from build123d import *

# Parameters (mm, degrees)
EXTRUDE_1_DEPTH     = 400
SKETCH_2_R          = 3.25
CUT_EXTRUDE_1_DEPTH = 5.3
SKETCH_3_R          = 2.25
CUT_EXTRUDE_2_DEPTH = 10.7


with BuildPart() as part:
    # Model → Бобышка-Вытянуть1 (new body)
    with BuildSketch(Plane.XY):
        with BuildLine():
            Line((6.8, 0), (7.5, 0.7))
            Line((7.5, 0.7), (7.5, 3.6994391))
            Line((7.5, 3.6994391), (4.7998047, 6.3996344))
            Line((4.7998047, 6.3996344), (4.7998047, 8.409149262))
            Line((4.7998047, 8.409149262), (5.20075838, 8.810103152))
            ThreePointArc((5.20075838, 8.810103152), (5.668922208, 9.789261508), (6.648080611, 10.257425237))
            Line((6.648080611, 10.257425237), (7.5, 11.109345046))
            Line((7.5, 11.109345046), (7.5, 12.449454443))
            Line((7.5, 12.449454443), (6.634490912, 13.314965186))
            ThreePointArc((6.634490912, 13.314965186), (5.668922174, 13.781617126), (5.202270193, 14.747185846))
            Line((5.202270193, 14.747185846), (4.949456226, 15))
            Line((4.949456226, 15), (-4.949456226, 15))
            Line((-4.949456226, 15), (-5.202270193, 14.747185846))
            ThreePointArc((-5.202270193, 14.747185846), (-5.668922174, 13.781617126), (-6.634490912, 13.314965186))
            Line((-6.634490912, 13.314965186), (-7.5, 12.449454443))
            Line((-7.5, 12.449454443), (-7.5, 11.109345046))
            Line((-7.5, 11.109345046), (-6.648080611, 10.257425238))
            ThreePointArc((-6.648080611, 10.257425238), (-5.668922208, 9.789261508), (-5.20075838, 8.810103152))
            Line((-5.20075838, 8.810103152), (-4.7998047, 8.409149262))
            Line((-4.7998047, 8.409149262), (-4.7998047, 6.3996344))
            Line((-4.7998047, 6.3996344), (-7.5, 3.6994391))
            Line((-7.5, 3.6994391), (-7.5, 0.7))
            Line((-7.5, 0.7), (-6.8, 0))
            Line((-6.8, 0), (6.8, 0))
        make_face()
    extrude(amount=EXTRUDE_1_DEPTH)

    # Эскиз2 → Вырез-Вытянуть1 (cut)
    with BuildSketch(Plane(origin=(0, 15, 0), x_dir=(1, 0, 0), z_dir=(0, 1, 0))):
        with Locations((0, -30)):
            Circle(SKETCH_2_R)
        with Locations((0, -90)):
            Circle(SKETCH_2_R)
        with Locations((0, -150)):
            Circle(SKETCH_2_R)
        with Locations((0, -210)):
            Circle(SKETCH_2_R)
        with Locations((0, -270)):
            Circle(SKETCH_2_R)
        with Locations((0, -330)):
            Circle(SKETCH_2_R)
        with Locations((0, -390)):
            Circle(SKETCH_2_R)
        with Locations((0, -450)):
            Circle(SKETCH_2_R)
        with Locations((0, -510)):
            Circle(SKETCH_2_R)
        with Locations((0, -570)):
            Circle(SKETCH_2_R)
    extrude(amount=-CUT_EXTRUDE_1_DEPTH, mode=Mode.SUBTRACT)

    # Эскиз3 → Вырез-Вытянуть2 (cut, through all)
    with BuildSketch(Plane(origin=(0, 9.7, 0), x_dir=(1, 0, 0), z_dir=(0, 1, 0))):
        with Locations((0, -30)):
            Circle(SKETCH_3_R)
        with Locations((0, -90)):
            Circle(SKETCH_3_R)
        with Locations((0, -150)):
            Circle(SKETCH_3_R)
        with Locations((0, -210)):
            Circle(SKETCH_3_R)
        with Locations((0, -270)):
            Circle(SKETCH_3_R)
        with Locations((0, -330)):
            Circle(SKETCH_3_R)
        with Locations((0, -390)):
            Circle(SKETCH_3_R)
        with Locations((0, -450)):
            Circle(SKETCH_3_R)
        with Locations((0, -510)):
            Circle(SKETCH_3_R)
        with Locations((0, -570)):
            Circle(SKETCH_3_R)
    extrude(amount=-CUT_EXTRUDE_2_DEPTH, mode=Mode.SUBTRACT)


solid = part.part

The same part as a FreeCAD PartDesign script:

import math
import FreeCAD as App
import Part
import Sketcher

V = App.Vector

doc = App.newDocument("Part")
params = doc.addObject("Spreadsheet::Sheet", "Params")
for row, (alias, value) in enumerate([
    ("sketch1_radius", "1.63 mm"),
    ("sketch1_width", "13.6 mm"),
    ("pad1_length", "400 mm"),
    ("sketch2_diameter", "6.5 mm"),
    ("pocket1_length", "5.3 mm"),
    ("sketch3_diameter", "4.5 mm"),
], start=1):
    params.set(f"A{row}", alias)
    params.set(f"B{row}", "=" + value)
    params.setAlias(f"B{row}", alias)

body = doc.addObject("PartDesign::Body", "Body")

sketch1 = doc.addObject("Sketcher::SketchObject", "Sketch")
body.addObject(sketch1)
sketch1.AttachmentSupport = (doc.XY_Plane, [""])
sketch1.MapMode = "FlatFace"
sketch1.addGeometry(Part.LineSegment(V(6.8, 0, 0), V(7.5, 0.7, 0)), False)
sketch1.addGeometry(Part.LineSegment(V(7.5, 0.7, 0), V(7.5, 3.699439, 0)), False)
sketch1.addGeometry(Part.LineSegment(V(7.5, 3.699439, 0), V(4.799805, 6.399634, 0)), False)
sketch1.addGeometry(Part.LineSegment(V(4.799805, 6.399634, 0), V(4.799805, 8.409149, 0)), False)
sketch1.addGeometry(Part.LineSegment(V(4.799805, 8.409149, 0), V(5.200758, 8.810103, 0)), False)
sketch1.addGeometry(Part.ArcOfCircle(Part.Circle(V(6.821506, 8.636677, 0), V(0, 0, 1), 1.63), math.radians(96.107606), math.radians(173.892388)), False)
sketch1.addGeometry(Part.LineSegment(V(6.648081, 10.257425, 0), V(7.5, 11.109345, 0)), False)
sketch1.addGeometry(Part.LineSegment(V(7.5, 11.109345, 0), V(7.5, 12.449454, 0)), False)
sketch1.addGeometry(Part.LineSegment(V(7.5, 12.449454, 0), V(6.634491, 13.314965, 0)), False)
sketch1.addGeometry(Part.ArcOfCircle(Part.Circle(V(6.821506, 14.934201, 0), V(0, 0, 1), 1.63), math.radians(-173.411755), math.radians(-96.588243)), False)
sketch1.addGeometry(Part.LineSegment(V(5.20227, 14.747186, 0), V(4.949456, 15, 0)), False)
sketch1.addGeometry(Part.LineSegment(V(4.949456, 15, 0), V(-4.949456, 15, 0)), False)
sketch1.addGeometry(Part.LineSegment(V(-4.949456, 15, 0), V(-5.20227, 14.747186, 0)), False)
sketch1.addGeometry(Part.ArcOfCircle(Part.Circle(V(-6.821506, 14.934201, 0), V(0, 0, 1), 1.63), math.radians(-83.411757), math.radians(-6.588245)), False)
sketch1.addGeometry(Part.LineSegment(V(-6.634491, 13.314965, 0), V(-7.5, 12.449454, 0)), False)
sketch1.addGeometry(Part.LineSegment(V(-7.5, 12.449454, 0), V(-7.5, 11.109345, 0)), False)
sketch1.addGeometry(Part.LineSegment(V(-7.5, 11.109345, 0), V(-6.648081, 10.257425, 0)), False)
sketch1.addGeometry(Part.ArcOfCircle(Part.Circle(V(-6.821506, 8.636677, 0), V(0, 0, 1), 1.63), math.radians(6.107612), math.radians(83.892394)), False)
sketch1.addGeometry(Part.LineSegment(V(-5.200758, 8.810103, 0), V(-4.799805, 8.409149, 0)), False)
sketch1.addGeometry(Part.LineSegment(V(-4.799805, 8.409149, 0), V(-4.799805, 6.399634, 0)), False)
sketch1.addGeometry(Part.LineSegment(V(-4.799805, 6.399634, 0), V(-7.5, 3.699439, 0)), False)
sketch1.addGeometry(Part.LineSegment(V(-7.5, 3.699439, 0), V(-7.5, 0.7, 0)), False)
sketch1.addGeometry(Part.LineSegment(V(-7.5, 0.7, 0), V(-6.8, 0, 0)), False)
sketch1.addGeometry(Part.LineSegment(V(-6.8, 0, 0), V(6.8, 0, 0)), False)
sketch1.addConstraint(Sketcher.Constraint("Coincident", 0, 2, 1, 1))
sketch1.addConstraint(Sketcher.Constraint("Coincident", 1, 2, 2, 1))
sketch1.addConstraint(Sketcher.Constraint("Coincident", 2, 2, 3, 1))
sketch1.addConstraint(Sketcher.Constraint("Coincident", 3, 2, 4, 1))
sketch1.addConstraint(Sketcher.Constraint("Coincident", 4, 2, 5, 2))
sketch1.addConstraint(Sketcher.Constraint("Coincident", 5, 1, 6, 1))
sketch1.addConstraint(Sketcher.Constraint("Coincident", 6, 2, 7, 1))
sketch1.addConstraint(Sketcher.Constraint("Coincident", 7, 2, 8, 1))
sketch1.addConstraint(Sketcher.Constraint("Coincident", 8, 2, 9, 2))
sketch1.addConstraint(Sketcher.Constraint("Coincident", 9, 1, 10, 1))
sketch1.addConstraint(Sketcher.Constraint("Coincident", 10, 2, 11, 1))
sketch1.addConstraint(Sketcher.Constraint("Coincident", 11, 2, 12, 1))
sketch1.addConstraint(Sketcher.Constraint("Coincident", 12, 2, 13, 2))
sketch1.addConstraint(Sketcher.Constraint("Coincident", 13, 1, 14, 1))
sketch1.addConstraint(Sketcher.Constraint("Coincident", 14, 2, 15, 1))
sketch1.addConstraint(Sketcher.Constraint("Coincident", 15, 2, 16, 1))
sketch1.addConstraint(Sketcher.Constraint("Coincident", 16, 2, 17, 2))
sketch1.addConstraint(Sketcher.Constraint("Coincident", 17, 1, 18, 1))
sketch1.addConstraint(Sketcher.Constraint("Coincident", 18, 2, 19, 1))
sketch1.addConstraint(Sketcher.Constraint("Coincident", 19, 2, 20, 1))
sketch1.addConstraint(Sketcher.Constraint("Coincident", 20, 2, 21, 1))
sketch1.addConstraint(Sketcher.Constraint("Coincident", 21, 2, 22, 1))
sketch1.addConstraint(Sketcher.Constraint("Coincident", 22, 2, 23, 1))
sketch1.addConstraint(Sketcher.Constraint("Coincident", 23, 2, 0, 1))
sketch1.addConstraint(Sketcher.Constraint("Vertical", 1))
sketch1.addConstraint(Sketcher.Constraint("Vertical", 3))
sketch1.addConstraint(Sketcher.Constraint("Vertical", 7))
sketch1.addConstraint(Sketcher.Constraint("Horizontal", 11))
sketch1.addConstraint(Sketcher.Constraint("Vertical", 15))
sketch1.addConstraint(Sketcher.Constraint("Vertical", 19))
sketch1.addConstraint(Sketcher.Constraint("Vertical", 21))
sketch1.addConstraint(Sketcher.Constraint("Horizontal", 23))
sketch1.addConstraint(Sketcher.Constraint("Equal", 5, 9))
sketch1.addConstraint(Sketcher.Constraint("Equal", 9, 13))
sketch1.addConstraint(Sketcher.Constraint("Equal", 13, 17))
sketch1.addConstraint(Sketcher.Constraint("Symmetric", 22, 2, 23, 2, -1, 1))
sketch1.addConstraint(Sketcher.Constraint("Symmetric", 9, 3, 13, 3, -2))
sketch1.addConstraint(Sketcher.Constraint("Symmetric", 5, 3, 17, 3, -2))
sketch1.addConstraint(Sketcher.Constraint("Symmetric", 7, 2, 14, 2, -2))
sketch1.addConstraint(Sketcher.Constraint("Symmetric", 3, 2, 18, 2, -2))
sketch1.addConstraint(Sketcher.Constraint("Symmetric", 1, 2, 20, 2, -2))
sketch1.addConstraint(Sketcher.Constraint("Perpendicular", 0, 2))
sketch1.addConstraint(Sketcher.Constraint("Perpendicular", 2, 4))
sketch1.addConstraint(Sketcher.Constraint("Parallel", 4, 6))
sketch1.addConstraint(Sketcher.Constraint("Perpendicular", 6, 8))
sketch1.addConstraint(Sketcher.Constraint("Parallel", 8, 10))
sketch1.addConstraint(Sketcher.Constraint("Perpendicular", 10, 12))
sketch1.addConstraint(Sketcher.Constraint("Parallel", 12, 14))
sketch1.addConstraint(Sketcher.Constraint("Perpendicular", 14, 16))
sketch1.addConstraint(Sketcher.Constraint("Parallel", 16, 18))
sketch1.addConstraint(Sketcher.Constraint("Perpendicular", 18, 20))
sketch1.addConstraint(Sketcher.Constraint("Perpendicular", 20, 22))
sketch1.addConstraint(Sketcher.Constraint("Horizontal", 9, 1, 12, 2))
sketch1.addConstraint(Sketcher.Constraint("Horizontal", 8, 2, 13, 1))
sketch1.addConstraint(Sketcher.Constraint("Horizontal", 6, 2, 15, 2))
sketch1.addConstraint(Sketcher.Constraint("Vertical", 5, 3, 9, 3))
sketch1.addConstraint(Sketcher.Constraint("Vertical", 1, 2, 6, 2))
sketch1.addConstraint(Sketcher.Constraint("Radius", 5, 1.63))
sketch1.addConstraint(Sketcher.Constraint("DistanceX", 23, 1, 23, 2, 13.6))
sketch1.addConstraint(Sketcher.Constraint("DistanceY", -1, 1, 10, 2, 15.0))
sketch1.addConstraint(Sketcher.Constraint("DistanceX", -1, 1, 0, 2, 7.5))
sketch1.addConstraint(Sketcher.Constraint("DistanceY", 1, 1, 1, 2, 2.999439))
sketch1.addConstraint(Sketcher.Constraint("DistanceY", 7, 1, 7, 2, 1.340109))
sketch1.addConstraint(Sketcher.Constraint("DistanceY", -1, 1, 9, 3, 14.934201))
sketch1.addConstraint(Sketcher.Constraint("DistanceX", 2, 2, 5, 3, 2.021702))
sketch1.addConstraint(Sketcher.Constraint("DistanceY", 4, 2, 9, 3, 6.124098))
sketch1.addConstraint(Sketcher.Constraint("DistanceX", 11, 2, 11, 1, 9.898912))
sketch1.addConstraint(Sketcher.Constraint("DistanceY", 3, 1, 3, 2, 2.009515))
sketch1.addConstraint(Sketcher.Constraint("DistanceY", -1, 1, 3, 2, 8.409149))
sketch1.addConstraint(Sketcher.Constraint("DistanceX", -1, 1, 5, 1, 6.648081))
sketch1.setExpression("Constraints[57]", "Params.sketch1_radius")
sketch1.setExpression("Constraints[58]", "Params.sketch1_width")
pad1 = doc.addObject("PartDesign::Pad", "Pad")
body.addObject(pad1)
pad1.Profile = sketch1
pad1.setExpression("Length", "Params.pad1_length")

sketch2 = doc.addObject("Sketcher::SketchObject", "Sketch001")
body.addObject(sketch2)
sketch2.AttachmentSupport = (doc.XZ_Plane, [""])
sketch2.MapMode = "FlatFace"
sketch2.AttachmentOffset = App.Placement(V(0, 0, -15), App.Rotation())
sketch2.addGeometry(Part.Circle(V(0, 30, 0), V(0, 0, 1), 3.25), False)
sketch2.addGeometry(Part.Circle(V(0, 90, 0), V(0, 0, 1), 3.25), False)
sketch2.addGeometry(Part.Circle(V(0, 150, 0), V(0, 0, 1), 3.25), False)
sketch2.addGeometry(Part.Circle(V(0, 210, 0), V(0, 0, 1), 3.25), False)
sketch2.addGeometry(Part.Circle(V(0, 270, 0), V(0, 0, 1), 3.25), False)
sketch2.addGeometry(Part.Circle(V(0, 330, 0), V(0, 0, 1), 3.25), False)
sketch2.addGeometry(Part.Circle(V(0, 390, 0), V(0, 0, 1), 3.25), False)
sketch2.addGeometry(Part.Circle(V(0, 450, 0), V(0, 0, 1), 3.25), False)
sketch2.addGeometry(Part.Circle(V(0, 510, 0), V(0, 0, 1), 3.25), False)
sketch2.addGeometry(Part.Circle(V(0, 570, 0), V(0, 0, 1), 3.25), False)
sketch2.addConstraint(Sketcher.Constraint("Equal", 0, 1))
sketch2.addConstraint(Sketcher.Constraint("Equal", 1, 2))
sketch2.addConstraint(Sketcher.Constraint("Equal", 2, 3))
sketch2.addConstraint(Sketcher.Constraint("Equal", 3, 4))
sketch2.addConstraint(Sketcher.Constraint("Equal", 4, 5))
sketch2.addConstraint(Sketcher.Constraint("Equal", 5, 6))
sketch2.addConstraint(Sketcher.Constraint("Equal", 6, 7))
sketch2.addConstraint(Sketcher.Constraint("Equal", 7, 8))
sketch2.addConstraint(Sketcher.Constraint("Equal", 8, 9))
sketch2.addConstraint(Sketcher.Constraint("PointOnObject", 0, 3, -2))
sketch2.addConstraint(Sketcher.Constraint("PointOnObject", 1, 3, -2))
sketch2.addConstraint(Sketcher.Constraint("PointOnObject", 2, 3, -2))
sketch2.addConstraint(Sketcher.Constraint("PointOnObject", 3, 3, -2))
sketch2.addConstraint(Sketcher.Constraint("PointOnObject", 4, 3, -2))
sketch2.addConstraint(Sketcher.Constraint("PointOnObject", 5, 3, -2))
sketch2.addConstraint(Sketcher.Constraint("PointOnObject", 6, 3, -2))
sketch2.addConstraint(Sketcher.Constraint("PointOnObject", 7, 3, -2))
sketch2.addConstraint(Sketcher.Constraint("PointOnObject", 8, 3, -2))
sketch2.addConstraint(Sketcher.Constraint("PointOnObject", 9, 3, -2))
sketch2.addConstraint(Sketcher.Constraint("Diameter", 0, 6.5))
sketch2.addConstraint(Sketcher.Constraint("DistanceY", -1, 1, 0, 3, 30.0))
sketch2.addConstraint(Sketcher.Constraint("DistanceY", -1, 1, 1, 3, 90.0))
sketch2.addConstraint(Sketcher.Constraint("DistanceY", -1, 1, 2, 3, 150.0))
sketch2.addConstraint(Sketcher.Constraint("DistanceY", -1, 1, 3, 3, 210.0))
sketch2.addConstraint(Sketcher.Constraint("DistanceY", -1, 1, 4, 3, 270.0))
sketch2.addConstraint(Sketcher.Constraint("DistanceY", -1, 1, 5, 3, 330.0))
sketch2.addConstraint(Sketcher.Constraint("DistanceY", -1, 1, 6, 3, 390.0))
sketch2.addConstraint(Sketcher.Constraint("DistanceY", -1, 1, 7, 3, 450.0))
sketch2.addConstraint(Sketcher.Constraint("DistanceY", -1, 1, 8, 3, 510.0))
sketch2.addConstraint(Sketcher.Constraint("DistanceY", -1, 1, 9, 3, 570.0))
sketch2.setExpression("Constraints[19]", "Params.sketch2_diameter")
pocket1 = doc.addObject("PartDesign::Pocket", "Pocket")
body.addObject(pocket1)
pocket1.Profile = sketch2
pocket1.setExpression("Length", "Params.pocket1_length")
pocket1.Reversed = True

sketch3 = doc.addObject("Sketcher::SketchObject", "Sketch002")
body.addObject(sketch3)
sketch3.AttachmentSupport = (doc.XZ_Plane, [""])
sketch3.MapMode = "FlatFace"
sketch3.AttachmentOffset = App.Placement(V(0, 0, -9.7), App.Rotation())
sketch3.addGeometry(Part.Circle(V(0, 30, 0), V(0, 0, 1), 2.25), False)
sketch3.addGeometry(Part.Circle(V(0, 90, 0), V(0, 0, 1), 2.25), False)
sketch3.addGeometry(Part.Circle(V(0, 150, 0), V(0, 0, 1), 2.25), False)
sketch3.addGeometry(Part.Circle(V(0, 210, 0), V(0, 0, 1), 2.25), False)
sketch3.addGeometry(Part.Circle(V(0, 270, 0), V(0, 0, 1), 2.25), False)
sketch3.addGeometry(Part.Circle(V(0, 330, 0), V(0, 0, 1), 2.25), False)
sketch3.addGeometry(Part.Circle(V(0, 390, 0), V(0, 0, 1), 2.25), False)
sketch3.addGeometry(Part.Circle(V(0, 450, 0), V(0, 0, 1), 2.25), False)
sketch3.addGeometry(Part.Circle(V(0, 510, 0), V(0, 0, 1), 2.25), False)
sketch3.addGeometry(Part.Circle(V(0, 570, 0), V(0, 0, 1), 2.25), False)
sketch3.addConstraint(Sketcher.Constraint("Equal", 0, 1))
sketch3.addConstraint(Sketcher.Constraint("Equal", 1, 2))
sketch3.addConstraint(Sketcher.Constraint("Equal", 2, 3))
sketch3.addConstraint(Sketcher.Constraint("Equal", 3, 4))
sketch3.addConstraint(Sketcher.Constraint("Equal", 4, 5))
sketch3.addConstraint(Sketcher.Constraint("Equal", 5, 6))
sketch3.addConstraint(Sketcher.Constraint("Equal", 6, 7))
sketch3.addConstraint(Sketcher.Constraint("Equal", 7, 8))
sketch3.addConstraint(Sketcher.Constraint("Equal", 8, 9))
sketch3.addConstraint(Sketcher.Constraint("PointOnObject", 0, 3, -2))
sketch3.addConstraint(Sketcher.Constraint("PointOnObject", 1, 3, -2))
sketch3.addConstraint(Sketcher.Constraint("PointOnObject", 2, 3, -2))
sketch3.addConstraint(Sketcher.Constraint("PointOnObject", 3, 3, -2))
sketch3.addConstraint(Sketcher.Constraint("PointOnObject", 4, 3, -2))
sketch3.addConstraint(Sketcher.Constraint("PointOnObject", 5, 3, -2))
sketch3.addConstraint(Sketcher.Constraint("PointOnObject", 6, 3, -2))
sketch3.addConstraint(Sketcher.Constraint("PointOnObject", 7, 3, -2))
sketch3.addConstraint(Sketcher.Constraint("PointOnObject", 8, 3, -2))
sketch3.addConstraint(Sketcher.Constraint("PointOnObject", 9, 3, -2))
sketch3.addConstraint(Sketcher.Constraint("Diameter", 0, 4.5))
sketch3.addConstraint(Sketcher.Constraint("DistanceY", -1, 1, 0, 3, 30.0))
sketch3.addConstraint(Sketcher.Constraint("DistanceY", -1, 1, 1, 3, 90.0))
sketch3.addConstraint(Sketcher.Constraint("DistanceY", -1, 1, 2, 3, 150.0))
sketch3.addConstraint(Sketcher.Constraint("DistanceY", -1, 1, 3, 3, 210.0))
sketch3.addConstraint(Sketcher.Constraint("DistanceY", -1, 1, 4, 3, 270.0))
sketch3.addConstraint(Sketcher.Constraint("DistanceY", -1, 1, 5, 3, 330.0))
sketch3.addConstraint(Sketcher.Constraint("DistanceY", -1, 1, 6, 3, 390.0))
sketch3.addConstraint(Sketcher.Constraint("DistanceY", -1, 1, 7, 3, 450.0))
sketch3.addConstraint(Sketcher.Constraint("DistanceY", -1, 1, 8, 3, 510.0))
sketch3.addConstraint(Sketcher.Constraint("DistanceY", -1, 1, 9, 3, 570.0))
sketch3.setExpression("Constraints[19]", "Params.sketch3_diameter")
pocket2 = doc.addObject("PartDesign::Pocket", "Pocket001")
body.addObject(pocket2)
pocket2.Profile = sketch3
pocket2.Type = "ThroughAll"
pocket2.Reversed = True

doc.recompute()
